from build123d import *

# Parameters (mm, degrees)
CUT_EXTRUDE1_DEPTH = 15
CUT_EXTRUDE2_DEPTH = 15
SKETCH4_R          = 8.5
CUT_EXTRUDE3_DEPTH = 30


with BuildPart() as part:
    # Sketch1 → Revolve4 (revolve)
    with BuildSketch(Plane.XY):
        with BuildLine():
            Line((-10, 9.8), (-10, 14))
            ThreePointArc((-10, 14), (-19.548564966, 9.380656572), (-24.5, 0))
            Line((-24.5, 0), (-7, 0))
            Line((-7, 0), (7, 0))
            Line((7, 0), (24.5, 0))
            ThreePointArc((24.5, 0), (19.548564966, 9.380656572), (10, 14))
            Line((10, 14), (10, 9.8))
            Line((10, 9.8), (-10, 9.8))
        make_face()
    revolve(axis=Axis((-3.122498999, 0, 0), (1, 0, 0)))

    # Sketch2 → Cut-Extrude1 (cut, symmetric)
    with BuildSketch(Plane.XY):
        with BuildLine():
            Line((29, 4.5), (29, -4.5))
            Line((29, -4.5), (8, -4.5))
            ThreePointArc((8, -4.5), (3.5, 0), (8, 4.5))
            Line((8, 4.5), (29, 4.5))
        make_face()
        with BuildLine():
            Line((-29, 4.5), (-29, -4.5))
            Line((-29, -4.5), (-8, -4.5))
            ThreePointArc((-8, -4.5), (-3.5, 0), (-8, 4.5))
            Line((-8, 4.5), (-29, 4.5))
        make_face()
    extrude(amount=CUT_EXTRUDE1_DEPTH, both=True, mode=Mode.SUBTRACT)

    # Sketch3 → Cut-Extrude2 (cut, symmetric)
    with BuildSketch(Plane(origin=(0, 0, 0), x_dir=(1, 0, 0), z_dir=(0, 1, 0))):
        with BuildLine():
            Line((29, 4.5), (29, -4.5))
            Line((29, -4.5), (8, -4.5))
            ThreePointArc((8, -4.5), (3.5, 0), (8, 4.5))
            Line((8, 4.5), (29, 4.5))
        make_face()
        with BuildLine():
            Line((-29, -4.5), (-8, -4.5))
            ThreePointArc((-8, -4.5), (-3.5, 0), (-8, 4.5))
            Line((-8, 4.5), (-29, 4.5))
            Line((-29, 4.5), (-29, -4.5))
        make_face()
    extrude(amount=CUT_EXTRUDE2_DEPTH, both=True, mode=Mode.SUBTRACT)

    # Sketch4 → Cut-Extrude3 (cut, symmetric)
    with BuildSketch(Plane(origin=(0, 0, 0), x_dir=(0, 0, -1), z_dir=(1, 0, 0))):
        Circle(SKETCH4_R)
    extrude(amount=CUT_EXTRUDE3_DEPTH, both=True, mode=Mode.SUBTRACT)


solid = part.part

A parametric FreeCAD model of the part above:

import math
import FreeCAD as App
import Part
import Sketcher
from FreeCAD import Vector
Q = App.Units.Quantity

doc = App.newDocument("Part")
body = doc.addObject("PartDesign::Body", "Body")

sketch1 = doc.addObject("Sketcher::SketchObject", "Sketch")
body.addObject(sketch1)
sketch1.AttachmentSupport = (doc.XY_Plane, [""])
sketch1.MapMode = "FlatFace"
sketch1.addGeometry(Part.LineSegment(Vector(-10, 9.8, 0), Vector(-10, 14, 0)), False)
sketch1.addGeometry(Part.ArcOfCircle(Part.Circle(Vector(-7.7, -2.8, 0), Vector(0, 0, 1), 17), math.radians(98), math.radians(170)), False)
sketch1.addGeometry(Part.LineSegment(Vector(-24.5, 0, 0), Vector(24.5, 0, 0)), False)
sketch1.addGeometry(Part.ArcOfCircle(Part.Circle(Vector(7.7, -2.8, 0), Vector(0, 0, 1), 17), math.radians(10), math.radians(82)), False)
sketch1.addGeometry(Part.LineSegment(Vector(10, 14, 0), Vector(10, 9.8, 0)), False)
sketch1.addGeometry(Part.LineSegment(Vector(10, 9.8, 0), Vector(-10, 9.8, 0)), False)
sketch1.addConstraint(Sketcher.Constraint("Coincident", 0, 2, 1, 1))
sketch1.addConstraint(Sketcher.Constraint("Coincident", 1, 2, 2, 1))
sketch1.addConstraint(Sketcher.Constraint("Coincident", 2, 2, 3, 1))
sketch1.addConstraint(Sketcher.Constraint("Coincident", 3, 2, 4, 1))
sketch1.addConstraint(Sketcher.Constraint("Coincident", 4, 2, 5, 1))
sketch1.addConstraint(Sketcher.Constraint("Coincident", 5, 2, 0, 1))
sketch1.addConstraint(Sketcher.Constraint("Vertical", 0))
sketch1.addConstraint(Sketcher.Constraint("Horizontal", 2))
sketch1.addConstraint(Sketcher.Constraint("Vertical", 4))
sketch1.addConstraint(Sketcher.Constraint("Horizontal", 5))
sketch1.addConstraint(Sketcher.Constraint("Equal", 1, 3))
sketch1.addConstraint(Sketcher.Constraint("Symmetric", 1, 2, 2, 2, -1, 1))
sketch1.addConstraint(Sketcher.Constraint("Symmetric", 0, 2, 3, 2, -2))
sketch1.addConstraint(Sketcher.Constraint("Radius", 1, Q("17 mm")))
sketch1.addConstraint(Sketcher.Constraint("DistanceX", 2, 1, 2, 2, Q("49 mm")))
sketch1.addConstraint(Sketcher.Constraint("DistanceX", 5, 2, 5, 1, Q("20 mm")))
sketch1.addConstraint(Sketcher.Constraint("DistanceY", 0, 1, 0, 2, Q("4.2 mm")))
sketch1.addConstraint(Sketcher.Constraint("DistanceY", -1, 1, 0, 2, Q("14 mm")))
revolution = doc.addObject("PartDesign::Revolution", "Revolution")
body.addObject(revolution)
revolution.Profile = sketch1
revolution.ReferenceAxis = (sketch1, ["H_Axis"])
revolution.Angle = 360

sketch2 = doc.addObject("Sketcher::SketchObject", "Sketch001")
body.addObject(sketch2)
sketch2.AttachmentSupport = (doc.XY_Plane, [""])
sketch2.MapMode = "FlatFace"
sketch2.addGeometry(Part.LineSegment(Vector(29, -4.5, 0), Vector(29, 4.5, 0)), False)
sketch2.addGeometry(Part.LineSegment(Vector(29, 4.5, 0), Vector(8, 4.5, 0)), False)
sketch2.addGeometry(Part.ArcOfCircle(Part.Circle(Vector(8, 0, 0), Vector(0, 0, 1), 4.5), math.radians(90), math.radians(270)), False)
sketch2.addGeometry(Part.LineSegment(Vector(8, -4.5, 0), Vector(29, -4.5, 0)), False)
sketch2.addGeometry(Part.LineSegment(Vector(-29, 4.5, 0), Vector(-29, -4.5, 0)), False)
sketch2.addGeometry(Part.LineSegment(Vector(-29, -4.5, 0), Vector(-8, -4.5, 0)), False)
sketch2.addGeometry(Part.ArcOfCircle(Part.Circle(Vector(-8, 0, 0), Vector(0, 0, 1), 4.5), math.radians(-90), math.radians(90)), False)
sketch2.addGeometry(Part.LineSegment(Vector(-8, 4.5, 0), Vector(-29, 4.5, 0)), False)
sketch2.addConstraint(Sketcher.Constraint("Coincident", 0, 2, 1, 1))
sketch2.addConstraint(Sketcher.Constraint("Tangent", 1, 2, 2, 1))
sketch2.addConstraint(Sketcher.Constraint("Tangent", 2, 2, 3, 1))
sketch2.addConstraint(Sketcher.Constraint("Coincident", 3, 2, 0, 1))
sketch2.addConstraint(Sketcher.Constraint("Coincident", 4, 2, 5, 1))
sketch2.addConstraint(Sketcher.Constraint("Tangent", 5, 2, 6, 1))
sketch2.addConstraint(Sketcher.Constraint("Tangent", 6, 2, 7, 1))
sketch2.addConstraint(Sketcher.Constraint("Coincident", 7, 2, 4, 1))
sketch2.addConstraint(Sketcher.Constraint("Vertical", 0))
sketch2.addConstraint(Sketcher.Constraint("Horizontal", 1))
sketch2.addConstraint(Sketcher.Constraint("Horizontal", 3))
sketch2.addConstraint(Sketcher.Constraint("Vertical", 4))
sketch2.addConstraint(Sketcher.Constraint("Horizontal", 5))
sketch2.addConstraint(Sketcher.Constraint("Horizontal", 7))
sketch2.addConstraint(Sketcher.Constraint("Equal", 2, 6))
sketch2.addConstraint(Sketcher.Constraint("Symmetric", 2, 3, 6, 3, -1, 1))
sketch2.addConstraint(Sketcher.Constraint("Symmetric", 3, 2, 4, 2, -2))
sketch2.addConstraint(Sketcher.Constraint("Radius", 2, Q("4.5 mm")))
sketch2.addConstraint(Sketcher.Constraint("DistanceX", 1, 2, 1, 1, Q("21 mm")))
sketch2.addConstraint(Sketcher.Constraint("DistanceX", -1, 1, 2, 3, Q("8 mm")))
pocket1 = doc.addObject("PartDesign::Pocket", "Pocket")
body.addObject(pocket1)
pocket1.Profile = sketch2
pocket1.Length = 30
pocket1.Midplane = True

sketch3 = doc.addObject("Sketcher::SketchObject", "Sketch002")
body.addObject(sketch3)
sketch3.AttachmentSupport = (doc.XZ_Plane, [""])
sketch3.MapMode = "FlatFace"
sketch3.addGeometry(Part.LineSegment(Vector(29, 4.5, 0), Vector(29, -4.5, 0)), False)
sketch3.addGeometry(Part.LineSegment(Vector(29, -4.5, 0), Vector(8, -4.5, 0)), False)
sketch3.addGeometry(Part.ArcOfCircle(Part.Circle(Vector(8, 0, 0), Vector(0, 0, 1), 4.5), math.radians(90), math.radians(270)), False)
sketch3.addGeometry(Part.LineSegment(Vector(8, 4.5, 0), Vector(29, 4.5, 0)), False)
sketch3.addGeometry(Part.LineSegment(Vector(-29, 4.5, 0), Vector(-8, 4.5, 0)), False)
sketch3.addGeometry(Part.ArcOfCircle(Part.Circle(Vector(-8, 0, 0), Vector(0, 0, 1), 4.5), math.radians(-90), math.radians(90)), False)
sketch3.addGeometry(Part.LineSegment(Vector(-8, -4.5, 0), Vector(-29, -4.5, 0)), False)
sketch3.addGeometry(Part.LineSegment(Vector(-29, -4.5, 0), Vector(-29, 4.5, 0)), False)
sketch3.addConstraint(Sketcher.Constraint("Coincident", 0, 2, 1, 1))
sketch3.addConstraint(Sketcher.Constraint("Tangent", 1, 2, 2, 2))
sketch3.addConstraint(Sketcher.Constraint("Tangent", 2, 1, 3, 1))
sketch3.addConstraint(Sketcher.Constraint("Coincident", 3, 2, 0, 1))
sketch3.addConstraint(Sketcher.Constraint("Tangent", 4, 2, 5, 2))
sketch3.addConstraint(Sketcher.Constraint("Tangent", 5, 1, 6, 1))
sketch3.addConstraint(Sketcher.Constraint("Coincident", 6, 2, 7, 1))
sketch3.addConstraint(Sketcher.Constraint("Coincident", 7, 2, 4, 1))
sketch3.addConstraint(Sketcher.Constraint("Vertical", 0))
sketch3.addConstraint(Sketcher.Constraint("Horizontal", 1))
sketch3.addConstraint(Sketcher.Constraint("Horizontal", 3))
sketch3.addConstraint(Sketcher.Constraint("Horizontal", 4))
sketch3.addConstraint(Sketcher.Constraint("Horizontal", 6))
sketch3.addConstraint(Sketcher.Constraint("Vertical", 7))
sketch3.addConstraint(Sketcher.Constraint("Equal", 2, 5))
sketch3.addConstraint(Sketcher.Constraint("Symmetric", 2, 3, 5, 3, -1, 1))
sketch3.addConstraint(Sketcher.Constraint("Symmetric", 0, 2, 6, 2, -2))
sketch3.addConstraint(Sketcher.Constraint("Radius", 2, Q("4.5 mm")))
sketch3.addConstraint(Sketcher.Constraint("DistanceX", 1, 2, 1, 1, Q("21 mm")))
sketch3.addConstraint(Sketcher.Constraint("DistanceX", -1, 1, 2, 3, Q("8 mm")))
pocket2 = doc.addObject("PartDesign::Pocket", "Pocket001")
body.addObject(pocket2)
pocket2.Profile = sketch3
pocket2.Length = 30
pocket2.Midplane = True

sketch4 = doc.addObject("Sketcher::SketchObject", "Sketch003")
body.addObject(sketch4)
sketch4.AttachmentSupport = (doc.YZ_Plane, [""])
sketch4.MapMode = "FlatFace"
sketch4.addGeometry(Part.Circle(Vector(0, 0, 0), Vector(0, 0, 1), 8), False)
sketch4.addConstraint(Sketcher.Constraint("Coincident", 0, 3, -1, 1))
sketch4.addConstraint(Sketcher.Constraint("Diameter", 0, Q("17 mm")))
pocket3 = doc.addObject("PartDesign::Pocket", "Pocket002")
body.addObject(pocket3)
pocket3.Profile = sketch4
pocket3.Length = 60
pocket3.Midplane = True

doc.recompute()
